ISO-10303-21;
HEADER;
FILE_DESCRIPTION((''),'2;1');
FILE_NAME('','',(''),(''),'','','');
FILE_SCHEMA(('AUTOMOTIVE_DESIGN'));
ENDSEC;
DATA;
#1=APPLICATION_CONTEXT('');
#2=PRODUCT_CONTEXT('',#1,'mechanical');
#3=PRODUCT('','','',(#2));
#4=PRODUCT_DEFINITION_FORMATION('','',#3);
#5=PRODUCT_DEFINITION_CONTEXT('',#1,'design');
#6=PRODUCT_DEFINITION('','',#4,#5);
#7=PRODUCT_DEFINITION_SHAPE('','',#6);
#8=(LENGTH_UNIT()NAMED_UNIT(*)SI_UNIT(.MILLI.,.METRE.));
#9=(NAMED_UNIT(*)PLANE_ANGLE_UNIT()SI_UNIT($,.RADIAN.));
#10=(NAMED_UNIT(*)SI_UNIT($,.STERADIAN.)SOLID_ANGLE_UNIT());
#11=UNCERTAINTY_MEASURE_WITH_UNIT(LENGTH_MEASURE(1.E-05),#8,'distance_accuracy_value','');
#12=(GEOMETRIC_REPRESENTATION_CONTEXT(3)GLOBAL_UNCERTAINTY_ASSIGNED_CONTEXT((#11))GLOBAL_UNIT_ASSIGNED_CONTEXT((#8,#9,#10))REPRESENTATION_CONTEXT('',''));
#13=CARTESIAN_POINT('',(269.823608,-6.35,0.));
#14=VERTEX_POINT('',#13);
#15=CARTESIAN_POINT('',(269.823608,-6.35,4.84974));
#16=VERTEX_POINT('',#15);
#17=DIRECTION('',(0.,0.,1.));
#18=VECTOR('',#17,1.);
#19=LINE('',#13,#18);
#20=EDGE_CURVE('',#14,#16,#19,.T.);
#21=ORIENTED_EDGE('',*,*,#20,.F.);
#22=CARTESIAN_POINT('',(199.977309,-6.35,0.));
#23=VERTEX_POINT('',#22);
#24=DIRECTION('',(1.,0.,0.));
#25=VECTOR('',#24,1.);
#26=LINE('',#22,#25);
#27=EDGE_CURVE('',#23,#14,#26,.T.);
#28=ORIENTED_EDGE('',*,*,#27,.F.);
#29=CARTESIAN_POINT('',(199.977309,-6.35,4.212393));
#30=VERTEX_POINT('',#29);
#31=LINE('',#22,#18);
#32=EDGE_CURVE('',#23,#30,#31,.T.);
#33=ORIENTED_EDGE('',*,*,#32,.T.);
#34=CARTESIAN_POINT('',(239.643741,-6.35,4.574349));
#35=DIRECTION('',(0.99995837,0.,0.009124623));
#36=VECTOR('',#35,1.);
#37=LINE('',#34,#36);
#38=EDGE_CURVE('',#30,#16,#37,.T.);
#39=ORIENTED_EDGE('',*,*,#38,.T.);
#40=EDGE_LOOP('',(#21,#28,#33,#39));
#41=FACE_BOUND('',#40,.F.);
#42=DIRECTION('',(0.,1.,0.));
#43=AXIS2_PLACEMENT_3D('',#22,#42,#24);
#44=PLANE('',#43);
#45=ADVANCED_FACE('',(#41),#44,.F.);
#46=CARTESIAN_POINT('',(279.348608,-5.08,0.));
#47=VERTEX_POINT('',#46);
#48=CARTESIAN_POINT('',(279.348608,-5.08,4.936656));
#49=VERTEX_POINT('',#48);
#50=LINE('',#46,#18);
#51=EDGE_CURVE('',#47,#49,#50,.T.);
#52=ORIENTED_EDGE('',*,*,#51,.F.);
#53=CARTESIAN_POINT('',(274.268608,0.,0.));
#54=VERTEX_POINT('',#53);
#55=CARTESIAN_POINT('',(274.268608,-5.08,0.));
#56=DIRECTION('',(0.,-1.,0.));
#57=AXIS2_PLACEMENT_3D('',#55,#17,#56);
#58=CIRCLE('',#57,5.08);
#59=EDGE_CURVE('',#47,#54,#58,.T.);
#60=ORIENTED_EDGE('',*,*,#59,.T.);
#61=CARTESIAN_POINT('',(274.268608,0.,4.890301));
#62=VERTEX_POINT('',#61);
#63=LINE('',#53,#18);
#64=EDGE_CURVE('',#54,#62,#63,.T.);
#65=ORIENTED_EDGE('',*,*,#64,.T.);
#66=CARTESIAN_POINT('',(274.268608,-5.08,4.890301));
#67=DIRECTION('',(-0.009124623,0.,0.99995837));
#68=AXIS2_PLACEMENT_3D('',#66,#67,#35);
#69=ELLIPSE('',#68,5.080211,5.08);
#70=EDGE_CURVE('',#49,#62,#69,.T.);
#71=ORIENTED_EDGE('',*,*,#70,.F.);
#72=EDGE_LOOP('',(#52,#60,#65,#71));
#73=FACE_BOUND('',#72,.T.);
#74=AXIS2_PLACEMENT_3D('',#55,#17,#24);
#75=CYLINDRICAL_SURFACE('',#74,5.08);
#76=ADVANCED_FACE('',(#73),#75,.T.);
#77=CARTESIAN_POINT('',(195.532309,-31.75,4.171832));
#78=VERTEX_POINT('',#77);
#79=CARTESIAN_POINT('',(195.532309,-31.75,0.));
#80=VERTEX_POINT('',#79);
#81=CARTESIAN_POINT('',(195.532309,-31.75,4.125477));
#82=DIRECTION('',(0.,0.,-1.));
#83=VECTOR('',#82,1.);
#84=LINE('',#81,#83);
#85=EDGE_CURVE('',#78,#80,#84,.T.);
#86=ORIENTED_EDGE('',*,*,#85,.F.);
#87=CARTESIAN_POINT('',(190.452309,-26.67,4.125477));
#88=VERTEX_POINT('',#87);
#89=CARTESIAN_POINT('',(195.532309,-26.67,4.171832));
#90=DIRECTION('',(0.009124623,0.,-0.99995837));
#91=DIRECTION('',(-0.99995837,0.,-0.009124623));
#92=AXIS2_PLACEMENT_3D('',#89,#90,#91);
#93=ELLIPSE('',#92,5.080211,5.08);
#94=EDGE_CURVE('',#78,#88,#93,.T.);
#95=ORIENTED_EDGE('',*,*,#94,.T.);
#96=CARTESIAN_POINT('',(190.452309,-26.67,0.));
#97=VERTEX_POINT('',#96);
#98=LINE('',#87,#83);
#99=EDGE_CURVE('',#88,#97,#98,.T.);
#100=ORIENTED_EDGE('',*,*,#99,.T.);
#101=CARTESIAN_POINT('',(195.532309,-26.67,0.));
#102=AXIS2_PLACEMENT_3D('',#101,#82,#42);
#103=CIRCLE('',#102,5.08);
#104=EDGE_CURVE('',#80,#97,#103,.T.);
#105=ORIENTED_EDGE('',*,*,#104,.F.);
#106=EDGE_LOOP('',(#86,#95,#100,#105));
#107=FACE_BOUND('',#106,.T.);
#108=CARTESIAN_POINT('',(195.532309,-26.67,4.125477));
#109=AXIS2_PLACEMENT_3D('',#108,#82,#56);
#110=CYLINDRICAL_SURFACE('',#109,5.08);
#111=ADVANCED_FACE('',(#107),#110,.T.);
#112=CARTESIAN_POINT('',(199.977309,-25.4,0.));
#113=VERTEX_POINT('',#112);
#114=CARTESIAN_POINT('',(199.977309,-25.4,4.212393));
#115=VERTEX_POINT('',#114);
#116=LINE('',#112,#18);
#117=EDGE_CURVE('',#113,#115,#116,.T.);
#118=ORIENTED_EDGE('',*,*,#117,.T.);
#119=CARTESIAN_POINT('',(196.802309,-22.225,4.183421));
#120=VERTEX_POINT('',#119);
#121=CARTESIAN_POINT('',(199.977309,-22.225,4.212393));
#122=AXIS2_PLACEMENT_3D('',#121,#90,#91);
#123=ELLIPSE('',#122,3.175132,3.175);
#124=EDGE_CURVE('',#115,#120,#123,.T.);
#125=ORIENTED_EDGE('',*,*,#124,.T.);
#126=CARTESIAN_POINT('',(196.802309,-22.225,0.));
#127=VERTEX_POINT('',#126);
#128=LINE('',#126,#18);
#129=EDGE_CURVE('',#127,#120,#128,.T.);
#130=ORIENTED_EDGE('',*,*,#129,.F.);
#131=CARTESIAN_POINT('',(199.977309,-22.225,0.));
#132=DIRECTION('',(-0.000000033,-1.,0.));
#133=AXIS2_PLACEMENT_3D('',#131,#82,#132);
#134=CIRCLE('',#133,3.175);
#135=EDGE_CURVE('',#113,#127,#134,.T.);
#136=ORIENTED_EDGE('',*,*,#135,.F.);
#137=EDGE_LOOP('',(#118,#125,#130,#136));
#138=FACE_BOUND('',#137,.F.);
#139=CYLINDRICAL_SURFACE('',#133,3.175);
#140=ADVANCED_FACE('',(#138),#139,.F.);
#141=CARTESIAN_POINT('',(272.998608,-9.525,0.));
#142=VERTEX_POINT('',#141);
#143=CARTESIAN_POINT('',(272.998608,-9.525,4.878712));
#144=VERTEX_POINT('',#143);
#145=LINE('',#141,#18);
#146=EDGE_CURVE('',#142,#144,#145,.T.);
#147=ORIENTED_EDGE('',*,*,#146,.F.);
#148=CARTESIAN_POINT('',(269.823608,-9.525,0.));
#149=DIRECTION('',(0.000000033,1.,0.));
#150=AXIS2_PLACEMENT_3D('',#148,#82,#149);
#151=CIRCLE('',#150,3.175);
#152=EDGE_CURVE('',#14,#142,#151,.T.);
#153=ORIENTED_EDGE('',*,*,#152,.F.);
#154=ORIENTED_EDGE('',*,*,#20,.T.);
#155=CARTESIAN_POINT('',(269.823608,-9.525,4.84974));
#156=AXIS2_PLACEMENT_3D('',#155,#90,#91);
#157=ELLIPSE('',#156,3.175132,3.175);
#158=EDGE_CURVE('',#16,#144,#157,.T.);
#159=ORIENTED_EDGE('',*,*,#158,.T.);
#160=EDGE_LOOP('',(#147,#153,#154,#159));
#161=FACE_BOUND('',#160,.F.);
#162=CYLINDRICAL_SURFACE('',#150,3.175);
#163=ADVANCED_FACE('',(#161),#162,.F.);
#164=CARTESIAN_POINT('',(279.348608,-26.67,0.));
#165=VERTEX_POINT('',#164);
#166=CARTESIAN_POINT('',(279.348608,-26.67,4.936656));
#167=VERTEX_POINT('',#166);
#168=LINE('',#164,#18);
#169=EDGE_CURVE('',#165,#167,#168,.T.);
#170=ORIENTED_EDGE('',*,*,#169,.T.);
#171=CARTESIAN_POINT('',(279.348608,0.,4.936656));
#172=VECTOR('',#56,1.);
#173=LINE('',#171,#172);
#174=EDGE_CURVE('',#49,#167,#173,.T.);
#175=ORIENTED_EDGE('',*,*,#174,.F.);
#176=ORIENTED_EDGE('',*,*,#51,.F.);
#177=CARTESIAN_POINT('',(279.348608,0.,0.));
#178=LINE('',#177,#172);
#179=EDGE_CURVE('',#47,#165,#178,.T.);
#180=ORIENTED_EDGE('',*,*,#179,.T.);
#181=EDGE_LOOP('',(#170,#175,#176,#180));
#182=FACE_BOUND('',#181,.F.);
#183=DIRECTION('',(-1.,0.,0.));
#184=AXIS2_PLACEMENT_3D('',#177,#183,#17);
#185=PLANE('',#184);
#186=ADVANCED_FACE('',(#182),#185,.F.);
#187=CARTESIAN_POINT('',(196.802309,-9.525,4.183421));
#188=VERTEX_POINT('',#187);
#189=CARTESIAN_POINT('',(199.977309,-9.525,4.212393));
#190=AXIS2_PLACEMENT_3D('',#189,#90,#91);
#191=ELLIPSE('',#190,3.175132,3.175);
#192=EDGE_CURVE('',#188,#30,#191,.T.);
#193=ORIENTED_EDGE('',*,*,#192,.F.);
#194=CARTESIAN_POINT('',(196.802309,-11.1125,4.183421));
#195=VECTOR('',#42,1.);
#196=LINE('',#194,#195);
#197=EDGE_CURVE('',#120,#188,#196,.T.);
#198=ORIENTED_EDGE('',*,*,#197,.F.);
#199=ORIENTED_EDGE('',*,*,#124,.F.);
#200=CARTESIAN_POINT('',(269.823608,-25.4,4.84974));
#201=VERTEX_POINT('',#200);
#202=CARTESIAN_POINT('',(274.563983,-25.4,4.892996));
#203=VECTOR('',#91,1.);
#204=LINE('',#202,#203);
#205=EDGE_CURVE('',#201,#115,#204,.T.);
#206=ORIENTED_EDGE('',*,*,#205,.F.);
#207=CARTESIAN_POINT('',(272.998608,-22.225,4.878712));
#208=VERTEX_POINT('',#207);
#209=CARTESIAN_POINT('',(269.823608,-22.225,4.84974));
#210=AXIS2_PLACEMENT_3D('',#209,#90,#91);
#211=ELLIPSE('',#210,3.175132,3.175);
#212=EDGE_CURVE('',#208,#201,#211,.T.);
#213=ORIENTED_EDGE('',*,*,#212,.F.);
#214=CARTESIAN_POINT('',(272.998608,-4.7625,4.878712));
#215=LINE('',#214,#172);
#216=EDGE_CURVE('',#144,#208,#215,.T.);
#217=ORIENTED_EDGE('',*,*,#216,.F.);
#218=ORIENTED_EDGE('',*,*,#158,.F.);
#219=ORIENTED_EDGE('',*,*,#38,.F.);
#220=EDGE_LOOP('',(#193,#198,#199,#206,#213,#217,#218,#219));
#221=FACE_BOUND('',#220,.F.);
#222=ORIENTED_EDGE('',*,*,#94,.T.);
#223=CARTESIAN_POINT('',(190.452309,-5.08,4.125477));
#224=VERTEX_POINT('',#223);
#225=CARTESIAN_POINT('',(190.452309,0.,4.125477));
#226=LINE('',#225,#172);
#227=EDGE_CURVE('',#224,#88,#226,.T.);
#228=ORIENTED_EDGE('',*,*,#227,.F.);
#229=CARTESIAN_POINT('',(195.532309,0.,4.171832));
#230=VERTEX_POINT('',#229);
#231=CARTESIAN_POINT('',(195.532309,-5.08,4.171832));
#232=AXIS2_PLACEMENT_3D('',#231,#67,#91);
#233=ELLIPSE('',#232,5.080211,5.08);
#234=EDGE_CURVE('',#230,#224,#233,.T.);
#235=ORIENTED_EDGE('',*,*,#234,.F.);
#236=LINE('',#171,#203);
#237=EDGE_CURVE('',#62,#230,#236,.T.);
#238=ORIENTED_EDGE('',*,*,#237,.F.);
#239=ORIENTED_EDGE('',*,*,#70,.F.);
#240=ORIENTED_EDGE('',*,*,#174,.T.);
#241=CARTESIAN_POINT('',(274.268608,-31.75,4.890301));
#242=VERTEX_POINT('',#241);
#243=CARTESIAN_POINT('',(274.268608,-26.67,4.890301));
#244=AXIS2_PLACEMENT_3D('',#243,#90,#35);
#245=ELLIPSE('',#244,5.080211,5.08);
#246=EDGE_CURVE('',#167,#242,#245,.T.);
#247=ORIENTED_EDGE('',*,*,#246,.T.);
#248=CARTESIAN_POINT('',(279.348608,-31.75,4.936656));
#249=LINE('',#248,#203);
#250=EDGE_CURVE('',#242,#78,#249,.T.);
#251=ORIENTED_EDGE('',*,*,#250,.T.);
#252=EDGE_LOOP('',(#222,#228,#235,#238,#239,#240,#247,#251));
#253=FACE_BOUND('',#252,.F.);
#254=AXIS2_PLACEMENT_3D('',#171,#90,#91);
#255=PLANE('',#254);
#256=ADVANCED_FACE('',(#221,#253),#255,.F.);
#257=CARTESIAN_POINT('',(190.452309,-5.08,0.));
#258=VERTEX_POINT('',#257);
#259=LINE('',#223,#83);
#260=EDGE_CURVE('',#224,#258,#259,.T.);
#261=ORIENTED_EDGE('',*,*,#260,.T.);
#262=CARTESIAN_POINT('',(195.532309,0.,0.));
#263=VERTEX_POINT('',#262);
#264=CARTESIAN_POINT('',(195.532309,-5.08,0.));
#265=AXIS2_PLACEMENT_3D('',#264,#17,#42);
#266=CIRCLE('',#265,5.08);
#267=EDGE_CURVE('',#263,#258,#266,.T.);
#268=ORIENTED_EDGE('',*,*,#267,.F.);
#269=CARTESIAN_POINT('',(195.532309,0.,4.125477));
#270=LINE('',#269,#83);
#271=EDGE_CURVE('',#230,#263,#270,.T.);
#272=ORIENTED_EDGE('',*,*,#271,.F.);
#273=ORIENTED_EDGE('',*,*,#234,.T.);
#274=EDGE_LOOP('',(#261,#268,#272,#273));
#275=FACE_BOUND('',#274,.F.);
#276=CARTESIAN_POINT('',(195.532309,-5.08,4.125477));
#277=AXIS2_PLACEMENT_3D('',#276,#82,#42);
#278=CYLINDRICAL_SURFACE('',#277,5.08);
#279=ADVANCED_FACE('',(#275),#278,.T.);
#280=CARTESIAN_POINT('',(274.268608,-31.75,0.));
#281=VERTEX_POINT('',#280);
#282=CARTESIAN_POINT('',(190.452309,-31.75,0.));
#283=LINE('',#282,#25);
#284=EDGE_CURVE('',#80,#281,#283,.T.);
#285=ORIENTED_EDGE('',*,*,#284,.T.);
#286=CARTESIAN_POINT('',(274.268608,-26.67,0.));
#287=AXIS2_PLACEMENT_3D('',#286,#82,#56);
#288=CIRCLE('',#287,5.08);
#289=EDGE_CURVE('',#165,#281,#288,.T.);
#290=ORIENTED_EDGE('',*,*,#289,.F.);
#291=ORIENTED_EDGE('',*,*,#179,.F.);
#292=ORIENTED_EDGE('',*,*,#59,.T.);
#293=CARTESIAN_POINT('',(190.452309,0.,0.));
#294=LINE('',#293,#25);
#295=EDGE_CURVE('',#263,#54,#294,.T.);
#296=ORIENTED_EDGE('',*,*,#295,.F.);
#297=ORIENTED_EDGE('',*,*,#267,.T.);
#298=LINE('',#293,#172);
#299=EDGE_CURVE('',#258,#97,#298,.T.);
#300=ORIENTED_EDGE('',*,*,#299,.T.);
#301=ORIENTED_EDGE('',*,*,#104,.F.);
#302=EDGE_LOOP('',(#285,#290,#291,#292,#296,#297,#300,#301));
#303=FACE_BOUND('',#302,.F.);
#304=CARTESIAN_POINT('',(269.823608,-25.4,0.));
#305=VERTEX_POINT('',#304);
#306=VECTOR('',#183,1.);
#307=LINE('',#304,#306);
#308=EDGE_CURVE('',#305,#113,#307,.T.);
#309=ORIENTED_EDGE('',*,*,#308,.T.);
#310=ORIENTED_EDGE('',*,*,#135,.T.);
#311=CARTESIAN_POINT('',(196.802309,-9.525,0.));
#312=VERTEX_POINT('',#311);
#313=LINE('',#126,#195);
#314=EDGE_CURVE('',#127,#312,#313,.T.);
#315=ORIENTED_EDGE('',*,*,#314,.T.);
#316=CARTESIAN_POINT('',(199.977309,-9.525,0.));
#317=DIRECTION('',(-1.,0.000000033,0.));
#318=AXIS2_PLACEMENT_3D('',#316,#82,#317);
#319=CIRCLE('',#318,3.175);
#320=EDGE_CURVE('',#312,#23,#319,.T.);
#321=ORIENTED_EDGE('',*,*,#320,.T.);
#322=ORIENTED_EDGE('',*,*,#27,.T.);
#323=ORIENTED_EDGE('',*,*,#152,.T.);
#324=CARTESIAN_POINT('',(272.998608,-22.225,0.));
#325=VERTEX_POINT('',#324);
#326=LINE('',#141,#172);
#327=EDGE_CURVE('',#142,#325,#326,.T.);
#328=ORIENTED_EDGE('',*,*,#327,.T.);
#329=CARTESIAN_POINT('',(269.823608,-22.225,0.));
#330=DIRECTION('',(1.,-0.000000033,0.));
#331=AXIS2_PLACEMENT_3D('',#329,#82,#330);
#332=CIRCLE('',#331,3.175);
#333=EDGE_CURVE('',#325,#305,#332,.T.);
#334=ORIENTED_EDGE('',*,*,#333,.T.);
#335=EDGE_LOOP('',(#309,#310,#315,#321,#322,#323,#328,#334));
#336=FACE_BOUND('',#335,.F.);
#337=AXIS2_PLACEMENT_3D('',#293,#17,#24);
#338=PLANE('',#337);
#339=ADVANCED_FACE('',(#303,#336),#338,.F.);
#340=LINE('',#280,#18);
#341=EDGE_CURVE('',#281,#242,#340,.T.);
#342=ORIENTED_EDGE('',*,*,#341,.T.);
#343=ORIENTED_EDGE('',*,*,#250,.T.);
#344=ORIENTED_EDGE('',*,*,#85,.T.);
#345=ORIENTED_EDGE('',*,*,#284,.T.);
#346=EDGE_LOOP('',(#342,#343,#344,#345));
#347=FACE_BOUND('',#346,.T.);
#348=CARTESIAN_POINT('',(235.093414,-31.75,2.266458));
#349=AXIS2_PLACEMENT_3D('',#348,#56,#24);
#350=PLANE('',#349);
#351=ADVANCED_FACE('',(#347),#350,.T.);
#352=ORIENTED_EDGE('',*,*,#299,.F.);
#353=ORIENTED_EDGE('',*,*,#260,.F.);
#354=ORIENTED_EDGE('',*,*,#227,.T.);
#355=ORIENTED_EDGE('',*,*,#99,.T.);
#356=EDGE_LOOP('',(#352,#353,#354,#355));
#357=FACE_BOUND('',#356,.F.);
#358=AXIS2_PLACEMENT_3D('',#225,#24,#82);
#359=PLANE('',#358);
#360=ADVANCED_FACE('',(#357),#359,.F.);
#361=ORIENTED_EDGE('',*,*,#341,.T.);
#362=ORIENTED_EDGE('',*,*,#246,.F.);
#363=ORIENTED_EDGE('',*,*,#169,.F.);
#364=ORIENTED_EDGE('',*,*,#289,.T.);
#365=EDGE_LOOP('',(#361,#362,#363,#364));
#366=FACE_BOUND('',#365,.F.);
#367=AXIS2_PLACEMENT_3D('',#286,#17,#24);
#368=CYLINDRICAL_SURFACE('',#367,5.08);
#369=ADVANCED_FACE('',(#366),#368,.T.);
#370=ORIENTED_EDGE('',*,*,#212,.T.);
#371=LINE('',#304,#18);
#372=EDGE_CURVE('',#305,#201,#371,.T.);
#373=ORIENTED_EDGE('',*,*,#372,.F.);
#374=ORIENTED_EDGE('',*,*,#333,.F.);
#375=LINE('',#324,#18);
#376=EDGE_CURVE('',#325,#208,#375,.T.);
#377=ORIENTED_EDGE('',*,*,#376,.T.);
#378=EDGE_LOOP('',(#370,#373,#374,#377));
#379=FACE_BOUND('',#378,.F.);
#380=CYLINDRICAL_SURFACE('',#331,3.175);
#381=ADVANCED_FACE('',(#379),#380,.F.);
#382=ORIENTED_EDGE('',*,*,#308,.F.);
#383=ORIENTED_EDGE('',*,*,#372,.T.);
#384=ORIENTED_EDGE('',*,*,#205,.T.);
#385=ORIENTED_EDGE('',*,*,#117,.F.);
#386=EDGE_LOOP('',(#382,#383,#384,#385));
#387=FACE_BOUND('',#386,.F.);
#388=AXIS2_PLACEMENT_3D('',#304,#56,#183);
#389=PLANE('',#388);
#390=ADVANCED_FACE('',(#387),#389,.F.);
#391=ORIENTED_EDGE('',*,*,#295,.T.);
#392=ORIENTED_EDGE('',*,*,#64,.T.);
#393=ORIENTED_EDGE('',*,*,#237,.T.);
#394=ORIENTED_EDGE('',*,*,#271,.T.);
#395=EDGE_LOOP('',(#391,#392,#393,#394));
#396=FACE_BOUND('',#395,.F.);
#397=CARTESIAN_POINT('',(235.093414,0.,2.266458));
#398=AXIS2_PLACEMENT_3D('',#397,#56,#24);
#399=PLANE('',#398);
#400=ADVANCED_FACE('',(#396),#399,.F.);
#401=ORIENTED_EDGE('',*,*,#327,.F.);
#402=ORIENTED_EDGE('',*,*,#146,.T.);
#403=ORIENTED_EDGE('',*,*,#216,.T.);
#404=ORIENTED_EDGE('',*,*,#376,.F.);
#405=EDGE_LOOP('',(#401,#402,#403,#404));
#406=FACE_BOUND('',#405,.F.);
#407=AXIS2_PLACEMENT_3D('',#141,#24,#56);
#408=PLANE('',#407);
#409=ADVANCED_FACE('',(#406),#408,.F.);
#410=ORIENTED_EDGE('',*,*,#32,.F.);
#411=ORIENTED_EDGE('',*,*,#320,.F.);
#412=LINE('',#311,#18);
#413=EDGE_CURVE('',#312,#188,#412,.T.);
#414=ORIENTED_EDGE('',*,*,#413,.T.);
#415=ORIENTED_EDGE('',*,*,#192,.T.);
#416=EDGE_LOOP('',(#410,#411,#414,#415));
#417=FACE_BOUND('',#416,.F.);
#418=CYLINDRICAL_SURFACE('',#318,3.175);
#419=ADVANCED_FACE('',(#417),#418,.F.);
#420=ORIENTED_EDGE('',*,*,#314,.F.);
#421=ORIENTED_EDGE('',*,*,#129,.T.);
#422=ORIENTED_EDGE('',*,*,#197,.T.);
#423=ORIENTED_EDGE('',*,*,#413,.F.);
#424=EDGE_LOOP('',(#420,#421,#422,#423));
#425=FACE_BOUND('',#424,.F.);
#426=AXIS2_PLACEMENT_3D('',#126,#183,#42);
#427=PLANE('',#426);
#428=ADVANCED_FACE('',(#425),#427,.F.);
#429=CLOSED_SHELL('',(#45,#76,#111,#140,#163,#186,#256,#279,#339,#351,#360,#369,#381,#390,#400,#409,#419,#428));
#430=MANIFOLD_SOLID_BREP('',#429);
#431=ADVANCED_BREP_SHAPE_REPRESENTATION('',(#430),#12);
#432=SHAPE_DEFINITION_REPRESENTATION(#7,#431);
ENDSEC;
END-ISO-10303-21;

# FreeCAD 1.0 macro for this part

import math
import FreeCAD as App
import Part
import Sketcher

V = App.Vector
Q = App.Units.Quantity


def edges_at(feature, points):
    """Names of the edges that pass closest to the given points."""
    edges = feature.Shape.Edges
    near = lambda p: min(range(len(edges)), key=lambda i: edges[i].distToShape(Part.Vertex(*p))[0])
    return sorted({f"Edge{near(p) + 1}" for p in points})

doc = App.newDocument("Part")
body = doc.addObject("PartDesign::Body", "Body")

# Sketch on XZ plane
sketch1 = body.newObject("Sketcher::SketchObject", "Sketch")
sketch1.AttachmentSupport = (doc.getObject("XZ_Plane"), [""])
sketch1.MapMode = "FlatFace"
sketch1.addGeometry([
    Part.LineSegment(V(279.3, 0, 0), V(279.3, 4.9, 0)),
    Part.LineSegment(V(279.3, 4.9, 0), V(190.5, 4.1, 0)),
    Part.LineSegment(V(190.5, 4.1, 0), V(190.5, 0, 0)),
    Part.LineSegment(V(190.5, 0, 0), V(279.3, 0, 0)),
], False)
sketch1.addConstraint([
    Sketcher.Constraint("Coincident", 0, 2, 1, 1),
    Sketcher.Constraint("Coincident", 1, 2, 2, 1),
    Sketcher.Constraint("Coincident", 2, 2, 3, 1),
    Sketcher.Constraint("Coincident", 3, 2, 0, 1),
    Sketcher.Constraint("Vertical", 0),
    Sketcher.Constraint("Vertical", 2),
    Sketcher.Constraint("Horizontal", 3),
    Sketcher.Constraint("PointOnObject", 2, 2, -1),
    Sketcher.Constraint("Distance", 1, Q("3.5 in")),
    Sketcher.Constraint("DistanceX", 3, 1, 3, 2, 88.896299),
    Sketcher.Constraint("DistanceY", 0, 1, 0, 2, 4.936656),
    Sketcher.Constraint("DistanceX", -1, 1, 0, 2, 279.348608),
])
pad1 = body.newObject("PartDesign::Pad", "Pad")
pad1.Profile = sketch1
pad1.Length = Q("1.25 in")

# Sketch on XY plane
sketch2 = body.newObject("Sketcher::SketchObject", "Sketch001")
sketch2.AttachmentSupport = (doc.getObject("XY_Plane"), [""])
sketch2.MapMode = "FlatFace"
sketch2.addGeometry([
    Part.LineSegment(V(269.8, -25.4, 0), V(200, -25.4, 0)),  # 0
    Part.ArcOfCircle(Part.Circle(V(200, -22.2, 0), V(0, 0, 1), 3.2), math.radians(-180), math.radians(-90)),  # 1
    Part.LineSegment(V(196.8, -22.2, 0), V(196.8, -9.5, 0)),  # 2
    Part.ArcOfCircle(Part.Circle(V(200, -9.5, 0), V(0, 0, 1), 3.2), math.radians(90), math.radians(180)),  # 3
    Part.LineSegment(V(200, -6.3, 0), V(269.8, -6.3, 0)),  # 4
    Part.ArcOfCircle(Part.Circle(V(269.8, -9.5, 0), V(0, 0, 1), 3.2), math.radians(0), math.radians(90)),  # 5
    Part.LineSegment(V(273, -9.5, 0), V(273, -22.2, 0)),  # 6
    Part.ArcOfCircle(Part.Circle(V(269.8, -22.2, 0), V(0, 0, 1), 3.2), math.radians(-90), math.radians(0)),  # 7
], False)
sketch2.addConstraint([
    Sketcher.Constraint("Tangent", 0, 2, 1, 2),
    Sketcher.Constraint("Tangent", 1, 1, 2, 1),
    Sketcher.Constraint("Tangent", 2, 2, 3, 2),
    Sketcher.Constraint("Tangent", 3, 1, 4, 1),
    Sketcher.Constraint("Tangent", 4, 2, 5, 2),
    Sketcher.Constraint("Tangent", 5, 1, 6, 1),
    Sketcher.Constraint("Tangent", 6, 2, 7, 2),
    Sketcher.Constraint("Tangent", 7, 1, 0, 1),
    Sketcher.Constraint("Horizontal", 0),
    Sketcher.Constraint("Vertical", 2),
    Sketcher.Constraint("Horizontal", 4),
    Sketcher.Constraint("Vertical", 6),
    Sketcher.Constraint("Equal", 1, 3),
    Sketcher.Constraint("Equal", 3, 5),
    Sketcher.Constraint("Equal", 5, 7),
    Sketcher.Constraint("DistanceY", 2, 1, 2, 2, Q("0.5 in")),
    Sketcher.Constraint("DistanceY", 0, 2, -1, 1, Q("1 in")),
    Sketcher.Constraint("Radius", 1, Q("0.125 in")),
    Sketcher.Constraint("DistanceX", 0, 2, 0, 1, 69.846299),
    Sketcher.Constraint("DistanceX", -1, 1, 1, 3, 199.977309),
])
pocket1 = body.newObject("PartDesign::Pocket", "Pocket")
pocket1.Profile = sketch2
pocket1.Type = "ThroughAll"
pocket1.Reversed = True
doc.recompute()

fillet = body.newObject("PartDesign::Fillet", "Fillet")
fillet.Base = (pocket1, edges_at(pocket1, [
    (279.349, -31.75, 2.468),
    (190.452, -31.75, 2.063),
    (190.452, 0, 2.063),
    (279.349, 0, 2.468),
]))
fillet.Radius = Q("0.2 in")

doc.recompute()
